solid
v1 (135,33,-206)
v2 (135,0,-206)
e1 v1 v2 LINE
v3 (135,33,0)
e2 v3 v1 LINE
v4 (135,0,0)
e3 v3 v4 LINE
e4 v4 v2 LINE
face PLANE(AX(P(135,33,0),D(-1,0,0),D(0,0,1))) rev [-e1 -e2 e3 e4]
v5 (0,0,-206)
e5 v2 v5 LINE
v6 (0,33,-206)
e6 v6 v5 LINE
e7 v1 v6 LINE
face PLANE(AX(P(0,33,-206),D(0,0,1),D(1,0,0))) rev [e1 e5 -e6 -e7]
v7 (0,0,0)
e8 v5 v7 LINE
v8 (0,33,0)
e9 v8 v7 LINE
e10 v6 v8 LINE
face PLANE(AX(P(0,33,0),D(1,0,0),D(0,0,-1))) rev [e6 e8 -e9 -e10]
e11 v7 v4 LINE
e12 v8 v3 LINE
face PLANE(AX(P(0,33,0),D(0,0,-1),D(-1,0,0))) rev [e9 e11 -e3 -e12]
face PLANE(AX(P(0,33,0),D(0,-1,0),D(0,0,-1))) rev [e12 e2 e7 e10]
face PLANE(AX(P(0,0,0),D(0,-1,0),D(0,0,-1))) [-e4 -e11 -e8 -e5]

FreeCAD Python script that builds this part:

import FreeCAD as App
import Part
import Sketcher
from FreeCAD import Vector

doc = App.newDocument("Part")
body = doc.addObject("PartDesign::Body", "Body")

# Sketch on XZ plane
sketch1 = body.newObject("Sketcher::SketchObject", "Sketch")
sketch1.AttachmentSupport = (doc.getObject("XZ_Plane"), [""])
sketch1.MapMode = "FlatFace"
sketch1.addGeometry(Part.LineSegment(Vector(0, -206, 0), Vector(0, 0, 0)), False)
sketch1.addGeometry(Part.LineSegment(Vector(0, 0, 0), Vector(135, 0, 0)), False)
sketch1.addGeometry(Part.LineSegment(Vector(135, 0, 0), Vector(135, -206, 0)), False)
sketch1.addGeometry(Part.LineSegment(Vector(135, -206, 0), Vector(0, -206, 0)), False)
sketch1.addConstraint(Sketcher.Constraint("Coincident", 0, 2, 1, 1))
sketch1.addConstraint(Sketcher.Constraint("Coincident", 1, 2, 2, 1))
sketch1.addConstraint(Sketcher.Constraint("Coincident", 2, 2, 3, 1))
sketch1.addConstraint(Sketcher.Constraint("Coincident", 3, 2, 0, 1))
sketch1.addConstraint(Sketcher.Constraint("Vertical", 0))
sketch1.addConstraint(Sketcher.Constraint("Horizontal", 1))
sketch1.addConstraint(Sketcher.Constraint("Vertical", 2))
sketch1.addConstraint(Sketcher.Constraint("Horizontal", 3))
sketch1.addConstraint(Sketcher.Constraint("Coincident", 0, 2, -1, 1))
sketch1.addConstraint(Sketcher.Constraint("DistanceX", 1, 1, 1, 2, 135.0))
sketch1.addConstraint(Sketcher.Constraint("DistanceY", 0, 1, 0, 2, 206.0))
pad1 = body.newObject("PartDesign::Pad", "Pad")
pad1.Profile = sketch1
pad1.Length = 33
pad1.Reversed = True

doc.recompute()
